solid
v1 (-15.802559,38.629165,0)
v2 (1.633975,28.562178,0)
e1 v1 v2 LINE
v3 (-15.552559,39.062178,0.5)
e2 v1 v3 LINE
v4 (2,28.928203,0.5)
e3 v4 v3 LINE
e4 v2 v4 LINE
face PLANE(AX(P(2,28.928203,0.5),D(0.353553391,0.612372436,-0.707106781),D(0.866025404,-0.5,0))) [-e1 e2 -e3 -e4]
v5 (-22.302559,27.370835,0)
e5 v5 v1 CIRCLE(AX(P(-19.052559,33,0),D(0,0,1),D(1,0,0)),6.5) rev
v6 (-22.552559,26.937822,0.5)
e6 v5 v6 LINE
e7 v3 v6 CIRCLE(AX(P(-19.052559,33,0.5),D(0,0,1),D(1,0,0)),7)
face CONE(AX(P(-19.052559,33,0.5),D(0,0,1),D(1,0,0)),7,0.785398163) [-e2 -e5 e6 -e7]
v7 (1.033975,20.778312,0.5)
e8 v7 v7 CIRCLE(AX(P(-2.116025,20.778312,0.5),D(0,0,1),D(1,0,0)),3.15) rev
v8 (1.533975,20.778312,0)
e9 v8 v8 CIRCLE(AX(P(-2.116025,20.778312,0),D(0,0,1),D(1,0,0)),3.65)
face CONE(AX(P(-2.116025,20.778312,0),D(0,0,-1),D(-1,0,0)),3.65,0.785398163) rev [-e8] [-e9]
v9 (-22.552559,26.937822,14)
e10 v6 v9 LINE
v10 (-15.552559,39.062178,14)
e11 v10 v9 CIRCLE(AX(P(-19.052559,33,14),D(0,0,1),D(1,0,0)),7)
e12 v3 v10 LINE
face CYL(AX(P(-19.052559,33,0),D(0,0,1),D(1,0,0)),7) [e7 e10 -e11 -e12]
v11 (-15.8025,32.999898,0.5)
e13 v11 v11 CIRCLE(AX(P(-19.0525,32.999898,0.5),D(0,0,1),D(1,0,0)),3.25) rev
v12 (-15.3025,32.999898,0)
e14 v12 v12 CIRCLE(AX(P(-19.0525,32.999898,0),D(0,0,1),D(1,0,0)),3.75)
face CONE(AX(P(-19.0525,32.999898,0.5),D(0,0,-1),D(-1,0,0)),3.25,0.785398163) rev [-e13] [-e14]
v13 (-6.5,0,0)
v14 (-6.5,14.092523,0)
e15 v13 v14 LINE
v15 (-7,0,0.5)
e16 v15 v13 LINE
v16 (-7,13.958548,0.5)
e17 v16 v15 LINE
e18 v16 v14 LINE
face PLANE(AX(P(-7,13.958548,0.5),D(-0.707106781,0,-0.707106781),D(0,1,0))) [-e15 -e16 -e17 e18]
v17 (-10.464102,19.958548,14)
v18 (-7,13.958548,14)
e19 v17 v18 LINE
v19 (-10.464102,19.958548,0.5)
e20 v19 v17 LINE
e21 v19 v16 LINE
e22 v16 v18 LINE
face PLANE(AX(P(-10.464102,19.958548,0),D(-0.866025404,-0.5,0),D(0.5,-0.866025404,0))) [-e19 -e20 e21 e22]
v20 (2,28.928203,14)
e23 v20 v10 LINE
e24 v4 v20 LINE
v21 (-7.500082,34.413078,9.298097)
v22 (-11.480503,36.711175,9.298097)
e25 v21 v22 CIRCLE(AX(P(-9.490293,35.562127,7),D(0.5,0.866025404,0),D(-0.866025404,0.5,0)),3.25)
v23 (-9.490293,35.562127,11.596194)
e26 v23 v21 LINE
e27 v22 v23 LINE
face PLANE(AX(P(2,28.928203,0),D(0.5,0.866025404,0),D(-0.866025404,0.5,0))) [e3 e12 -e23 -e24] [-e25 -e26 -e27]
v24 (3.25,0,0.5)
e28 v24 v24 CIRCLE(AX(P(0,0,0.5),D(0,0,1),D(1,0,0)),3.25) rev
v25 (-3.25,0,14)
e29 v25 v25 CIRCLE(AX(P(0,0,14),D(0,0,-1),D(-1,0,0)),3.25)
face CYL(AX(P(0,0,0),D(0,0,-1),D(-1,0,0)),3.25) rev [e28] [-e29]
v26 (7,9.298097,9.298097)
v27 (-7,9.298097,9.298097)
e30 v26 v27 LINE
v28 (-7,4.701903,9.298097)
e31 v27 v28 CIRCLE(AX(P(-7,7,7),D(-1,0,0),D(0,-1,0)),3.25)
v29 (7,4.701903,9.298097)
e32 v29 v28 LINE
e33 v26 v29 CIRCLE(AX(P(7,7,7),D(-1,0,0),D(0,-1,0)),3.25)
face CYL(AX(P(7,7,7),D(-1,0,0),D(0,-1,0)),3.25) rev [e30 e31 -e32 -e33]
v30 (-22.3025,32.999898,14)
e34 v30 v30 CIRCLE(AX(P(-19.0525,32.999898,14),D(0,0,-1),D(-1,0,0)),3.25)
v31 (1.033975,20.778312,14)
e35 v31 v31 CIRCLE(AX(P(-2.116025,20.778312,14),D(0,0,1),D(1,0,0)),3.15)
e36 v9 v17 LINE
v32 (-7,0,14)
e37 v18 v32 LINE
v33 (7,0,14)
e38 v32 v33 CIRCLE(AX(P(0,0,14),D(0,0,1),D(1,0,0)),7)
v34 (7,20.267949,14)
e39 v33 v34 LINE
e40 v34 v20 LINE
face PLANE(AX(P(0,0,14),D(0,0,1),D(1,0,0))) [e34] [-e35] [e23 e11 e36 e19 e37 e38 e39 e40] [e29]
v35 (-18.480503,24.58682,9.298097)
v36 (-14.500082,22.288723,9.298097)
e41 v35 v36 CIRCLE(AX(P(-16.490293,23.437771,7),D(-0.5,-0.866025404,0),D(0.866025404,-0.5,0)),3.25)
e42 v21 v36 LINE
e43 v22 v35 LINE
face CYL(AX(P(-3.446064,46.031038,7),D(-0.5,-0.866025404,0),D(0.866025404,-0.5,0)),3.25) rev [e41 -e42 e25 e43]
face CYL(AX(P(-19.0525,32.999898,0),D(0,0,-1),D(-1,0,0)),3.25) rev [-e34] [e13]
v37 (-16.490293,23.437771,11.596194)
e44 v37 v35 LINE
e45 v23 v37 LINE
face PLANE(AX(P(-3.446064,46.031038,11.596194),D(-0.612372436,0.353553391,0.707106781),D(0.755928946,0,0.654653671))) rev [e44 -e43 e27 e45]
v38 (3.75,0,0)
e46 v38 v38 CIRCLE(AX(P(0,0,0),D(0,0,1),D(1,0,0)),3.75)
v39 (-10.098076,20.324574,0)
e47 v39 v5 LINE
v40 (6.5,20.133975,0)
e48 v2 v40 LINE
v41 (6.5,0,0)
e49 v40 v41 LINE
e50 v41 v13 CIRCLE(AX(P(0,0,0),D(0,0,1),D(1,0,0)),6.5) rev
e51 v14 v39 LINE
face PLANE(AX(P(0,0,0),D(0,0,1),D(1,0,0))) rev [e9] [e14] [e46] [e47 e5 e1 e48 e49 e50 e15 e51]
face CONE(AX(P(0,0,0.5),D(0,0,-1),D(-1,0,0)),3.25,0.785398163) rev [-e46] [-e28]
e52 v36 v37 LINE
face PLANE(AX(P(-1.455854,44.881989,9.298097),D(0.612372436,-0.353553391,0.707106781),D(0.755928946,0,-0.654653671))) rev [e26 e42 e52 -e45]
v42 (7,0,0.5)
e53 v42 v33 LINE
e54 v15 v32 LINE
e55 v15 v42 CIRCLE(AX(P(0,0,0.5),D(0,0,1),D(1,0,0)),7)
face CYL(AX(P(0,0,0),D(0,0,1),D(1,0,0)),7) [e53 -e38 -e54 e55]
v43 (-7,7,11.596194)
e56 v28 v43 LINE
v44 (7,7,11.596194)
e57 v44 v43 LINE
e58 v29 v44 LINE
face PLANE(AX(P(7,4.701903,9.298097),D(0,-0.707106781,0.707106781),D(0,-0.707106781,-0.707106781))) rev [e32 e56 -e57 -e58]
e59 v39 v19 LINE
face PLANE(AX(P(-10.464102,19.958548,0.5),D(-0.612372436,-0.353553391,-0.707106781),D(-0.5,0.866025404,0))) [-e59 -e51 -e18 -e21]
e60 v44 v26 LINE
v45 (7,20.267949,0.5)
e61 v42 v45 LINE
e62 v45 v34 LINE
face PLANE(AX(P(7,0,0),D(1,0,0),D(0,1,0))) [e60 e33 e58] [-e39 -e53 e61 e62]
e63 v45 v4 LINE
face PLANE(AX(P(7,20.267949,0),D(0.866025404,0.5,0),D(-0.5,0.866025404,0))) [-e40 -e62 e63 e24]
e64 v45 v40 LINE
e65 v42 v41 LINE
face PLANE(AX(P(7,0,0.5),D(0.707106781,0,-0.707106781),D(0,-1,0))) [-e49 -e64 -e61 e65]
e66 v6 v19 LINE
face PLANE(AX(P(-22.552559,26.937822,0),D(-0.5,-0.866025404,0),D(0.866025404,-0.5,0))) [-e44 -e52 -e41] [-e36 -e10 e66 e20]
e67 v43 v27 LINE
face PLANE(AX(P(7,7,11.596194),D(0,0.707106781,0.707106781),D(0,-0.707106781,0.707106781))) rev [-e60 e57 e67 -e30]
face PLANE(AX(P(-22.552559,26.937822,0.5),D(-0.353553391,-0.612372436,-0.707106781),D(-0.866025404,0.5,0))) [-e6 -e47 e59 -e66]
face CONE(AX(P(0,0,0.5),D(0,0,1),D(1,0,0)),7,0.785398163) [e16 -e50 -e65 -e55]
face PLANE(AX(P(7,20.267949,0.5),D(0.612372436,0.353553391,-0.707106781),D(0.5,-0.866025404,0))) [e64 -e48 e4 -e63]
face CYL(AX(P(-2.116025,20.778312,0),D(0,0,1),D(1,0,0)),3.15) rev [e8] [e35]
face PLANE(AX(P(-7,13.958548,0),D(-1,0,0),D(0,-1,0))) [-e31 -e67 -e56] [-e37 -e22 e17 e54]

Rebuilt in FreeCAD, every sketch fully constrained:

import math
import FreeCAD as App
import Part
import Sketcher
Q = App.Units.Quantity


def edges_at(feature, points):
    """Names of the edges that pass closest to the given points."""
    edges = feature.Shape.Edges
    near = lambda p: min(range(len(edges)), key=lambda i: edges[i].distToShape(Part.Vertex(*p))[0])
    return sorted({f"Edge{near(p) + 1}" for p in points})

doc = App.newDocument("Part")
params = doc.addObject("Spreadsheet::Sheet", "Params")
for row, (alias, value) in enumerate([
    ("sketch1_radius", "7 mm"),
    ("sketch1_length", "10 mm"),
    ("pad1_length", "14 mm"),
    ("sketch2_diameter", "6.5 mm"),
    ("hole_diameter", "6.5 mm"),
    ("sketch3_diameter", "6.5 mm"),
    ("hole2_diameter", "6.5 mm"),
    ("sketch4_radius", "3.25 mm"),
    ("sketch5_radius", "3.25 mm"),
    ("sketch6_diameter", "6.3 mm"),
    ("chamfer_size", "0.5 mm"),
], start=1):
    params.set(f"A{row}", alias)
    params.set(f"B{row}", "=" + value)
    params.setAlias(f"B{row}", alias)

body = doc.addObject("PartDesign::Body", "Body")

# Sketch on XY plane
sketch1 = body.newObject("Sketcher::SketchObject", "Sketch")
sketch1.AttachmentSupport = (doc.getObject("XY_Plane"), [""])
sketch1.MapMode = "FlatFace"
sketch1.AttachmentOffset = App.Placement(App.Vector(0, 0, 14), App.Rotation())
sketch1.addGeometry(Part.LineSegment(App.Vector(7, 0, 0), App.Vector(7, 20.267949, 0)), False)
sketch1.addGeometry(Part.LineSegment(App.Vector(7, 20.267949, 0), App.Vector(2, 28.928203, 0)), False)
sketch1.addGeometry(Part.LineSegment(App.Vector(2, 28.928203, 0), App.Vector(-15.552559, 39.062178, 0)), False)
sketch1.addGeometry(Part.ArcOfCircle(Part.Circle(App.Vector(-19.052559, 33, 0), App.Vector(0, 0, 1), 7), math.radians(60), math.radians(240)), False)
sketch1.addGeometry(Part.LineSegment(App.Vector(-22.552559, 26.937822, 0), App.Vector(-10.464102, 19.958548, 0)), False)
sketch1.addGeometry(Part.LineSegment(App.Vector(-10.464102, 19.958548, 0), App.Vector(-7, 13.958548, 0)), False)
sketch1.addGeometry(Part.LineSegment(App.Vector(-7, 13.958548, 0), App.Vector(-7, 0, 0)), False)
sketch1.addGeometry(Part.ArcOfCircle(Part.Circle(App.Vector(0, 0, 0), App.Vector(0, 0, 1), 7), math.radians(180), math.radians(360)), False)
sketch1.addConstraint(Sketcher.Constraint("Coincident", 0, 2, 1, 1))
sketch1.addConstraint(Sketcher.Constraint("Coincident", 1, 2, 2, 1))
sketch1.addConstraint(Sketcher.Constraint("Tangent", 2, 2, 3, 1))
sketch1.addConstraint(Sketcher.Constraint("Tangent", 3, 2, 4, 1))
sketch1.addConstraint(Sketcher.Constraint("Coincident", 4, 2, 5, 1))
sketch1.addConstraint(Sketcher.Constraint("Coincident", 5, 2, 6, 1))
sketch1.addConstraint(Sketcher.Constraint("Tangent", 6, 2, 7, 1))
sketch1.addConstraint(Sketcher.Constraint("Tangent", 7, 2, 0, 1))
sketch1.addConstraint(Sketcher.Constraint("Vertical", 0))
sketch1.addConstraint(Sketcher.Constraint("Vertical", 6))
sketch1.addConstraint(Sketcher.Constraint("Coincident", 7, 3, -1, 1))
sketch1.addConstraint(Sketcher.Constraint("Equal", 3, 7))
sketch1.addConstraint(Sketcher.Constraint("Parallel", 2, 4))
sketch1.addConstraint(Sketcher.Constraint("Parallel", 1, 5))
sketch1.addConstraint(Sketcher.Constraint("Radius", 3, Q("7 mm")))
sketch1.addConstraint(Sketcher.Constraint("Angle", 1, Q("120 deg")))
sketch1.addConstraint(Sketcher.Constraint("Angle", 2, Q("150 deg")))
sketch1.addConstraint(Sketcher.Constraint("Distance", 1, Q("10 mm")))
sketch1.addConstraint(Sketcher.Constraint("DistanceY", -1, 1, 3, 3, Q("33 mm")))
sketch1.addConstraint(Sketcher.Constraint("DistanceY", 5, 2, 4, 2, Q("6 mm")))
sketch1.addConstraint(Sketcher.Constraint("DistanceY", 0, 1, 0, 2, Q("20.267949 mm")))
sketch1.setExpression("Constraints[14]", "Params.sketch1_radius")
sketch1.setExpression("Constraints[17]", "Params.sketch1_length")
pad1 = body.newObject("PartDesign::Pad", "Pad")
pad1.Profile = sketch1
pad1.setExpression("Length", "Params.pad1_length")
pad1.Reversed = True

# Sketch on XY plane
sketch2 = body.newObject("Sketcher::SketchObject", "Sketch001")
sketch2.AttachmentSupport = (doc.getObject("XY_Plane"), [""])
sketch2.MapMode = "FlatFace"
sketch2.addGeometry(Part.Circle(App.Vector(0, 0, 0), App.Vector(0, 0, 1), 3.25), False)
sketch2.addConstraint(Sketcher.Constraint("Coincident", 0, 3, -1, 1))
sketch2.addConstraint(Sketcher.Constraint("Diameter", 0, Q("6.5 mm")))
sketch2.setExpression("Constraints[1]", "Params.sketch2_diameter")
doc.recompute()
hole = body.newObject("PartDesign::Hole", "Hole")
hole.Profile = sketch2
hole.ThreadType = "None"
hole.setExpression("Diameter", "Params.hole_diameter")
hole.DepthType = "ThroughAll"
hole.Reversed = True

# Sketch on XY plane
sketch3 = body.newObject("Sketcher::SketchObject", "Sketch002")
sketch3.AttachmentSupport = (doc.getObject("XY_Plane"), [""])
sketch3.MapMode = "FlatFace"
sketch3.addGeometry(Part.Circle(App.Vector(-19.0525, 32.999898, 0), App.Vector(0, 0, 1), 3.25), False)
sketch3.addConstraint(Sketcher.Constraint("Diameter", 0, Q("6.5 mm")))
sketch3.addConstraint(Sketcher.Constraint("DistanceX", 0, 3, -1, 1, Q("19.0525 mm")))
sketch3.addConstraint(Sketcher.Constraint("DistanceY", -1, 1, 0, 3, Q("32.999898 mm")))
sketch3.setExpression("Constraints[0]", "Params.sketch3_diameter")
doc.recompute()
hole2 = body.newObject("PartDesign::Hole", "Hole001")
hole2.Profile = sketch3
hole2.ThreadType = "None"
hole2.setExpression("Diameter", "Params.hole2_diameter")
hole2.DepthType = "ThroughAll"
hole2.Reversed = True

# Sketch on an angled plane
sketch4 = body.newObject("Sketcher::SketchObject", "Sketch003")
sketch4.Placement = App.Placement(App.Vector(6.026279, 10.437822, 0), App.Rotation(App.Vector(0.866025404, -0.5, 0), App.Vector(0, 0, 1), App.Vector(-0.5, -0.866025404, 0), "ZXY"))
sketch4.addGeometry(Part.LineSegment(App.Vector(-25.999898, 11.596194, 0), App.Vector(-28.297995, 9.298097, 0)), False)
sketch4.addGeometry(Part.ArcOfCircle(Part.Circle(App.Vector(-25.999898, 7, 0), App.Vector(0, 0, 1), 3.25), math.radians(135), math.radians(405)), False)
sketch4.addGeometry(Part.LineSegment(App.Vector(-23.701801, 9.298097, 0), App.Vector(-25.999898, 11.596194, 0)), False)
sketch4.addConstraint(Sketcher.Constraint("Tangent", 0, 2, 1, 1))
sketch4.addConstraint(Sketcher.Constraint("Tangent", 1, 2, 2, 1))
sketch4.addConstraint(Sketcher.Constraint("Coincident", 2, 2, 0, 1))
sketch4.addConstraint(Sketcher.Constraint("Perpendicular", 0, 2))
sketch4.addConstraint(Sketcher.Constraint("Horizontal", 0, 2, 1, 2))
sketch4.addConstraint(Sketcher.Constraint("Radius", 1, Q("3.25 mm")))
sketch4.addConstraint(Sketcher.Constraint("DistanceY", -1, 1, 1, 3, Q("7 mm")))
sketch4.addConstraint(Sketcher.Constraint("DistanceX", 1, 3, -1, 1, Q("25.999898 mm")))
sketch4.setExpression("Constraints[5]", "Params.sketch4_radius")
pocket1 = body.newObject("PartDesign::Pocket", "Pocket")
pocket1.Profile = sketch4
pocket1.Type = "ThroughAll"

# Sketch on YZ plane
sketch5 = body.newObject("Sketcher::SketchObject", "Sketch004")
sketch5.AttachmentSupport = (doc.getObject("YZ_Plane"), [""])
sketch5.MapMode = "FlatFace"
sketch5.AttachmentOffset = App.Placement(App.Vector(0, 0, -7), App.Rotation())
sketch5.addGeometry(Part.LineSegment(App.Vector(4.701903, 9.298097, 0), App.Vector(7, 11.596194, 0)), False)
sketch5.addGeometry(Part.LineSegment(App.Vector(7, 11.596194, 0), App.Vector(9.298097, 9.298097, 0)), False)
sketch5.addGeometry(Part.ArcOfCircle(Part.Circle(App.Vector(7, 7, 0), App.Vector(0, 0, 1), 3.25), math.radians(135), math.radians(405)), False)
sketch5.addConstraint(Sketcher.Constraint("Coincident", 0, 2, 1, 1))
sketch5.addConstraint(Sketcher.Constraint("Tangent", 1, 2, 2, 2))
sketch5.addConstraint(Sketcher.Constraint("Tangent", 2, 1, 0, 1))
sketch5.addConstraint(Sketcher.Constraint("Perpendicular", 0, 1))
sketch5.addConstraint(Sketcher.Constraint("Horizontal", 1, 2, 2, 1))
sketch5.addConstraint(Sketcher.Constraint("Radius", 2, Q("3.25 mm")))
sketch5.addConstraint(Sketcher.Constraint("DistanceX", -1, 1, 2, 3, Q("7 mm")))
sketch5.addConstraint(Sketcher.Constraint("DistanceY", -1, 1, 2, 3, Q("7 mm")))
sketch5.setExpression("Constraints[5]", "Params.sketch5_radius")
pocket2 = body.newObject("PartDesign::Pocket", "Pocket001")
pocket2.Profile = sketch5
pocket2.Type = "ThroughAll"
pocket2.Reversed = True

# Sketch on XY plane
sketch6 = body.newObject("Sketcher::SketchObject", "Sketch005")
sketch6.AttachmentSupport = (doc.getObject("XY_Plane"), [""])
sketch6.MapMode = "FlatFace"
sketch6.AttachmentOffset = App.Placement(App.Vector(0, 0, 14), App.Rotation())
sketch6.addGeometry(Part.Circle(App.Vector(-2.116025, 20.778312, 0), App.Vector(0, 0, 1), 3.15), False)
sketch6.addConstraint(Sketcher.Constraint("Diameter", 0, Q("6.3 mm")))
sketch6.addConstraint(Sketcher.Constraint("DistanceX", 0, 3, -1, 1, Q("2.116025 mm")))
sketch6.addConstraint(Sketcher.Constraint("DistanceY", -1, 1, 0, 3, Q("20.778312 mm")))
sketch6.setExpression("Constraints[0]", "Params.sketch6_diameter")
pocket3 = body.newObject("PartDesign::Pocket", "Pocket002")
pocket3.Profile = sketch6
pocket3.Type = "ThroughAll"
doc.recompute()

chamfer = body.newObject("PartDesign::Chamfer", "Chamfer")
chamfer.Base = (pocket3, edges_at(pocket3, [
    (4.5, 24.598, 0),
    (-6.776, 33.995, 0),
    (-25.115, 36.5, 0),
    (-16.508, 23.448, 0),
    (-8.732, 16.959, 0),
    (-3.25, 0, 0),
    (-7, 6.979, 0),
    (-22.302, 33, 0),
    (0, -7, 0),
    (-5.266, 20.778, 0),
    (7, 10.134, 0),
]))
chamfer.setExpression("Size", "Params.chamfer_size")

doc.recompute()
